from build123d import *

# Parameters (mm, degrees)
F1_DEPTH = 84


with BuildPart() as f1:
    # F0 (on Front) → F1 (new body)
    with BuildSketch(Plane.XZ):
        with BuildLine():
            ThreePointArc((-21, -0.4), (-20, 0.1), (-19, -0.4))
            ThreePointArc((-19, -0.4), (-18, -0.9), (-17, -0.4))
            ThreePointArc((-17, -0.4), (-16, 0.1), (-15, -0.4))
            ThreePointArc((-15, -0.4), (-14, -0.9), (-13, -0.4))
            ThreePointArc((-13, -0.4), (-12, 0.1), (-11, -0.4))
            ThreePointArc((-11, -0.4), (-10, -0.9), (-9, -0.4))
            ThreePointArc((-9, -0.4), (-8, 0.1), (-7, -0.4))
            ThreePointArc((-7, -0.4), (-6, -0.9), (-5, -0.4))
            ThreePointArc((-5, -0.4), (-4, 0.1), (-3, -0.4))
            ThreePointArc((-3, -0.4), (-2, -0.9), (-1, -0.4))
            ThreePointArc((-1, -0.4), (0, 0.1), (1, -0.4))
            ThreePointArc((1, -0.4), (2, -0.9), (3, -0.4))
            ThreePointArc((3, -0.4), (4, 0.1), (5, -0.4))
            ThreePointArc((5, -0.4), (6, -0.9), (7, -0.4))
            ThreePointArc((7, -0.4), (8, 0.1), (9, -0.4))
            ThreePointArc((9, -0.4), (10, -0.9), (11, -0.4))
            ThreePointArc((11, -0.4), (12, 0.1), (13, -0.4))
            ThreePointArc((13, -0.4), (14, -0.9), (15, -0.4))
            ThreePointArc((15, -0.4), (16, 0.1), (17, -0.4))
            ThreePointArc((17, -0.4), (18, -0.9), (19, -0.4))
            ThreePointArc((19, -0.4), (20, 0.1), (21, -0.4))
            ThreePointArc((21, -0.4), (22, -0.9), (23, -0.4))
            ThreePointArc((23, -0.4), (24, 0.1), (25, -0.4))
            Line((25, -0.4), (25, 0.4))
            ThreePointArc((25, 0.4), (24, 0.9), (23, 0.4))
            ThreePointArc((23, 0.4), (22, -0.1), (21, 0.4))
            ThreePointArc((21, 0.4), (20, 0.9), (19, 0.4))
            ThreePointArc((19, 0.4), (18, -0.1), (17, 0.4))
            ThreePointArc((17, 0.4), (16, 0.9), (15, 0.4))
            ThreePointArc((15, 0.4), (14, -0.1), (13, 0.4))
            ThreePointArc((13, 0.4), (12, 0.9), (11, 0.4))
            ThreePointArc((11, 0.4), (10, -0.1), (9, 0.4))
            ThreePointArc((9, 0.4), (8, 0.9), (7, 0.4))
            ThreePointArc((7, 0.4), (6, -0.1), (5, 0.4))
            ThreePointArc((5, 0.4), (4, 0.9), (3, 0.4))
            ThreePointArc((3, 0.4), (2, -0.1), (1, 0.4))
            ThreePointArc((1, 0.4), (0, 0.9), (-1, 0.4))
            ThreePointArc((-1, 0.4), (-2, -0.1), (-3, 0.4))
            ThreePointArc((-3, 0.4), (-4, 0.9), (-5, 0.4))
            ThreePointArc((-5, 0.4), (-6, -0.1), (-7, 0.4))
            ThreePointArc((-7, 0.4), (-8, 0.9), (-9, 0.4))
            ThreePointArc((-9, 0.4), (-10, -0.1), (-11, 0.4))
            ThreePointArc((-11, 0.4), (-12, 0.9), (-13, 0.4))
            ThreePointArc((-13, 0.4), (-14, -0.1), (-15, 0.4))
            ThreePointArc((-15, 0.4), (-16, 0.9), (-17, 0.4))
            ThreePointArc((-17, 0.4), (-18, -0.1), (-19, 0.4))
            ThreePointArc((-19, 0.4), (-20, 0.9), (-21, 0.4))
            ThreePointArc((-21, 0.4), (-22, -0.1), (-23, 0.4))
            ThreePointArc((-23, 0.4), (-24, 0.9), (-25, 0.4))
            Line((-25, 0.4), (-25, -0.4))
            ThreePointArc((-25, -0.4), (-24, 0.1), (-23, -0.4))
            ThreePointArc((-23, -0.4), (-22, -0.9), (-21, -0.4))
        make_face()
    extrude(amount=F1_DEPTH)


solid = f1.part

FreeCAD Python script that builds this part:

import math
import FreeCAD as App
import Part
import Sketcher
from FreeCAD import Vector

doc = App.newDocument("Part")
body = doc.addObject("PartDesign::Body", "Body")

sketch1 = body.newObject("Sketcher::SketchObject", "Sketch")
sketch1.AttachmentSupport = (doc.getObject("XZ_Plane"), [""])
sketch1.MapMode = "FlatFace"
sketch1.addGeometry([
    Part.ArcOfCircle(Part.Circle(Vector(-20, -1.1, 0), Vector(0, 0, 1), 1.2), math.radians(37), math.radians(143)),
    Part.ArcOfCircle(Part.Circle(Vector(-18, 0.3, 0), Vector(0, 0, 1), 1.2), math.radians(-143), math.radians(-37)),
    Part.ArcOfCircle(Part.Circle(Vector(-16, -1.1, 0), Vector(0, 0, 1), 1.2), math.radians(37), math.radians(143)),
    Part.ArcOfCircle(Part.Circle(Vector(-14, 0.3, 0), Vector(0, 0, 1), 1.2), math.radians(-143), math.radians(-37)),
    Part.ArcOfCircle(Part.Circle(Vector(-12, -1.1, 0), Vector(0, 0, 1), 1.2), math.radians(37), math.radians(143)),
    Part.ArcOfCircle(Part.Circle(Vector(-10, 0.3, 0), Vector(0, 0, 1), 1.2), math.radians(-143), math.radians(-37)),
    Part.ArcOfCircle(Part.Circle(Vector(-8, -1.1, 0), Vector(0, 0, 1), 1.2), math.radians(37), math.radians(143)),
    Part.ArcOfCircle(Part.Circle(Vector(-6, 0.3, 0), Vector(0, 0, 1), 1.2), math.radians(-143), math.radians(-37)),
    Part.ArcOfCircle(Part.Circle(Vector(-4, -1.1, 0), Vector(0, 0, 1), 1.2), math.radians(37), math.radians(143)),
    Part.ArcOfCircle(Part.Circle(Vector(-2, 0.3, 0), Vector(0, 0, 1), 1.2), math.radians(-143), math.radians(-37)),
    Part.ArcOfCircle(Part.Circle(Vector(0, -1.1, 0), Vector(0, 0, 1), 1.2), math.radians(37), math.radians(143)),
    Part.ArcOfCircle(Part.Circle(Vector(2, 0.3, 0), Vector(0, 0, 1), 1.2), math.radians(-143), math.radians(-37)),
    Part.ArcOfCircle(Part.Circle(Vector(4, -1.1, 0), Vector(0, 0, 1), 1.2), math.radians(37), math.radians(143)),
    Part.ArcOfCircle(Part.Circle(Vector(6, 0.3, 0), Vector(0, 0, 1), 1.2), math.radians(-143), math.radians(-37)),
    Part.ArcOfCircle(Part.Circle(Vector(8, -1.1, 0), Vector(0, 0, 1), 1.2), math.radians(37), math.radians(143)),
    Part.ArcOfCircle(Part.Circle(Vector(10, 0.3, 0), Vector(0, 0, 1), 1.2), math.radians(-143), math.radians(-37)),
    Part.ArcOfCircle(Part.Circle(Vector(12, -1.1, 0), Vector(0, 0, 1), 1.2), math.radians(37), math.radians(143)),
    Part.ArcOfCircle(Part.Circle(Vector(14, 0.3, 0), Vector(0, 0, 1), 1.2), math.radians(-143), math.radians(-37)),
    Part.ArcOfCircle(Part.Circle(Vector(16, -1.1, 0), Vector(0, 0, 1), 1.2), math.radians(37), math.radians(143)),
    Part.ArcOfCircle(Part.Circle(Vector(18, 0.3, 0), Vector(0, 0, 1), 1.2), math.radians(-143), math.radians(-37)),
    Part.ArcOfCircle(Part.Circle(Vector(20, -1.1, 0), Vector(0, 0, 1), 1.2), math.radians(37), math.radians(143)),
    Part.ArcOfCircle(Part.Circle(Vector(22, 0.3, 0), Vector(0, 0, 1), 1.2), math.radians(-143), math.radians(-37)),
    Part.ArcOfCircle(Part.Circle(Vector(24, -1.1, 0), Vector(0, 0, 1), 1.2), math.radians(37), math.radians(143)),
    Part.LineSegment(Vector(25, -0.4, 0), Vector(25, 0.4, 0)),
    Part.ArcOfCircle(Part.Circle(Vector(24, -0.3, 0), Vector(0, 0, 1), 1.2), math.radians(37), math.radians(143)),
    Part.ArcOfCircle(Part.Circle(Vector(22, 1.1, 0), Vector(0, 0, 1), 1.2), math.radians(-143), math.radians(-37)),
    Part.ArcOfCircle(Part.Circle(Vector(20, -0.3, 0), Vector(0, 0, 1), 1.2), math.radians(37), math.radians(143)),
    Part.ArcOfCircle(Part.Circle(Vector(18, 1.1, 0), Vector(0, 0, 1), 1.2), math.radians(-143), math.radians(-37)),
    Part.ArcOfCircle(Part.Circle(Vector(16, -0.3, 0), Vector(0, 0, 1), 1.2), math.radians(37), math.radians(143)),
    Part.ArcOfCircle(Part.Circle(Vector(14, 1.1, 0), Vector(0, 0, 1), 1.2), math.radians(-143), math.radians(-37)),
    Part.ArcOfCircle(Part.Circle(Vector(12, -0.3, 0), Vector(0, 0, 1), 1.2), math.radians(37), math.radians(143)),
    Part.ArcOfCircle(Part.Circle(Vector(10, 1.1, 0), Vector(0, 0, 1), 1.2), math.radians(-143), math.radians(-37)),
    Part.ArcOfCircle(Part.Circle(Vector(8, -0.3, 0), Vector(0, 0, 1), 1.2), math.radians(37), math.radians(143)),
    Part.ArcOfCircle(Part.Circle(Vector(6, 1.1, 0), Vector(0, 0, 1), 1.2), math.radians(-143), math.radians(-37)),
    Part.ArcOfCircle(Part.Circle(Vector(4, -0.3, 0), Vector(0, 0, 1), 1.2), math.radians(37), math.radians(143)),
    Part.ArcOfCircle(Part.Circle(Vector(2, 1.1, 0), Vector(0, 0, 1), 1.2), math.radians(-143), math.radians(-37)),
    Part.ArcOfCircle(Part.Circle(Vector(0, -0.3, 0), Vector(0, 0, 1), 1.2), math.radians(37), math.radians(143)),
    Part.ArcOfCircle(Part.Circle(Vector(-2, 1.1, 0), Vector(0, 0, 1), 1.2), math.radians(-143), math.radians(-37)),
    Part.ArcOfCircle(Part.Circle(Vector(-4, -0.3, 0), Vector(0, 0, 1), 1.2), math.radians(37), math.radians(143)),
    Part.ArcOfCircle(Part.Circle(Vector(-6, 1.1, 0), Vector(0, 0, 1), 1.2), math.radians(-143), math.radians(-37)),
    Part.ArcOfCircle(Part.Circle(Vector(-8, -0.3, 0), Vector(0, 0, 1), 1.2), math.radians(37), math.radians(143)),
    Part.ArcOfCircle(Part.Circle(Vector(-10, 1.1, 0), Vector(0, 0, 1), 1.2), math.radians(-143), math.radians(-37)),
    Part.ArcOfCircle(Part.Circle(Vector(-12, -0.3, 0), Vector(0, 0, 1), 1.2), math.radians(37), math.radians(143)),
    Part.ArcOfCircle(Part.Circle(Vector(-14, 1.1, 0), Vector(0, 0, 1), 1.2), math.radians(-143), math.radians(-37)),
    Part.ArcOfCircle(Part.Circle(Vector(-16, -0.3, 0), Vector(0, 0, 1), 1.2), math.radians(37), math.radians(143)),
    Part.ArcOfCircle(Part.Circle(Vector(-18, 1.1, 0), Vector(0, 0, 1), 1.2), math.radians(-143), math.radians(-37)),
    Part.ArcOfCircle(Part.Circle(Vector(-20, -0.3, 0), Vector(0, 0, 1), 1.2), math.radians(37), math.radians(143)),
    Part.ArcOfCircle(Part.Circle(Vector(-22, 1.1, 0), Vector(0, 0, 1), 1.2), math.radians(-143), math.radians(-37)),
    Part.ArcOfCircle(Part.Circle(Vector(-24, -0.3, 0), Vector(0, 0, 1), 1.2), math.radians(37), math.radians(143)),
    Part.LineSegment(Vector(-25, 0.4, 0), Vector(-25, -0.4, 0)),
    Part.ArcOfCircle(Part.Circle(Vector(-24, -1.1, 0), Vector(0, 0, 1), 1.2), math.radians(37), math.radians(143)),
    Part.ArcOfCircle(Part.Circle(Vector(-22, 0.3, 0), Vector(0, 0, 1), 1.2), math.radians(-143), math.radians(-37)),
], False)
sketch1.addConstraint([
    Sketcher.Constraint("Tangent", 0, 1, 1, 1),
    Sketcher.Constraint("Tangent", 1, 2, 2, 2),
    Sketcher.Constraint("Tangent", 2, 1, 3, 1),
    Sketcher.Constraint("Tangent", 3, 2, 4, 2),
    Sketcher.Constraint("Tangent", 4, 1, 5, 1),
    Sketcher.Constraint("Tangent", 5, 2, 6, 2),
    Sketcher.Constraint("Tangent", 6, 1, 7, 1),
    Sketcher.Constraint("Tangent", 7, 2, 8, 2),
    Sketcher.Constraint("Tangent", 8, 1, 9, 1),
    Sketcher.Constraint("Tangent", 9, 2, 10, 2),
    Sketcher.Constraint("Tangent", 10, 1, 11, 1),
    Sketcher.Constraint("Tangent", 11, 2, 12, 2),
    Sketcher.Constraint("Tangent", 12, 1, 13, 1),
    Sketcher.Constraint("Tangent", 13, 2, 14, 2),
    Sketcher.Constraint("Tangent", 14, 1, 15, 1),
    Sketcher.Constraint("Tangent", 15, 2, 16, 2),
    Sketcher.Constraint("Tangent", 16, 1, 17, 1),
    Sketcher.Constraint("Tangent", 17, 2, 18, 2),
    Sketcher.Constraint("Tangent", 18, 1, 19, 1),
    Sketcher.Constraint("Tangent", 19, 2, 20, 2),
    Sketcher.Constraint("Tangent", 20, 1, 21, 1),
    Sketcher.Constraint("Tangent", 21, 2, 22, 2),
    Sketcher.Constraint("Coincident", 22, 1, 23, 1),
    Sketcher.Constraint("Coincident", 23, 2, 24, 1),
    Sketcher.Constraint("Tangent", 24, 2, 25, 2),
    Sketcher.Constraint("Tangent", 25, 1, 26, 1),
    Sketcher.Constraint("Tangent", 26, 2, 27, 2),
    Sketcher.Constraint("Tangent", 27, 1, 28, 1),
    Sketcher.Constraint("Tangent", 28, 2, 29, 2),
    Sketcher.Constraint("Tangent", 29, 1, 30, 1),
    Sketcher.Constraint("Tangent", 30, 2, 31, 2),
    Sketcher.Constraint("Tangent", 31, 1, 32, 1),
    Sketcher.Constraint("Tangent", 32, 2, 33, 2),
    Sketcher.Constraint("Tangent", 33, 1, 34, 1),
    Sketcher.Constraint("Tangent", 34, 2, 35, 2),
    Sketcher.Constraint("Tangent", 35, 1, 36, 1),
    Sketcher.Constraint("Tangent", 36, 2, 37, 2),
    Sketcher.Constraint("Tangent", 37, 1, 38, 1),
    Sketcher.Constraint("Tangent", 38, 2, 39, 2),
    Sketcher.Constraint("Tangent", 39, 1, 40, 1),
    Sketcher.Constraint("Tangent", 40, 2, 41, 2),
    Sketcher.Constraint("Tangent", 41, 1, 42, 1),
    Sketcher.Constraint("Tangent", 42, 2, 43, 2),
    Sketcher.Constraint("Tangent", 43, 1, 44, 1),
    Sketcher.Constraint("Tangent", 44, 2, 45, 2),
    Sketcher.Constraint("Tangent", 45, 1, 46, 1),
    Sketcher.Constraint("Tangent", 46, 2, 47, 2),
    Sketcher.Constraint("Tangent", 47, 1, 48, 1),
    Sketcher.Constraint("Coincident", 48, 2, 49, 1),
    Sketcher.Constraint("Coincident", 49, 2, 50, 2),
    Sketcher.Constraint("Tangent", 50, 1, 51, 1),
    Sketcher.Constraint("Tangent", 51, 2, 0, 2),
    Sketcher.Constraint("Vertical", 23),
    Sketcher.Constraint("Vertical", 49),
    Sketcher.Constraint("Equal", 0, 1),
    Sketcher.Constraint("Equal", 1, 2),
    Sketcher.Constraint("Equal", 2, 3),
    Sketcher.Constraint("Equal", 3, 4),
    Sketcher.Constraint("Equal", 4, 5),
    Sketcher.Constraint("Equal", 5, 6),
    Sketcher.Constraint("Equal", 6, 7),
    Sketcher.Constraint("Equal", 7, 8),
    Sketcher.Constraint("Equal", 8, 9),
    Sketcher.Constraint("Equal", 9, 10),
    Sketcher.Constraint("Equal", 10, 11),
    Sketcher.Constraint("Equal", 11, 12),
    Sketcher.Constraint("Equal", 12, 13),
    Sketcher.Constraint("Equal", 13, 14),
    Sketcher.Constraint("Equal", 14, 15),
    Sketcher.Constraint("Equal", 15, 16),
    Sketcher.Constraint("Equal", 16, 17),
    Sketcher.Constraint("Equal", 17, 18),
    Sketcher.Constraint("Equal", 18, 19),
    Sketcher.Constraint("Equal", 19, 20),
    Sketcher.Constraint("Equal", 20, 21),
    Sketcher.Constraint("Equal", 21, 22),
    Sketcher.Constraint("Equal", 22, 24),
    Sketcher.Constraint("Equal", 24, 25),
    Sketcher.Constraint("Equal", 25, 26),
    Sketcher.Constraint("Equal", 26, 27),
    Sketcher.Constraint("Equal", 27, 28),
    Sketcher.Constraint("Equal", 28, 29),
    Sketcher.Constraint("Equal", 29, 30),
    Sketcher.Constraint("Equal", 30, 31),
    Sketcher.Constraint("Equal", 31, 32),
    Sketcher.Constraint("Equal", 32, 33),
    Sketcher.Constraint("Equal", 33, 34),
    Sketcher.Constraint("Equal", 34, 35),
    Sketcher.Constraint("Equal", 35, 36),
    Sketcher.Constraint("Equal", 36, 37),
    Sketcher.Constraint("Equal", 37, 38),
    Sketcher.Constraint("Equal", 38, 39),
    Sketcher.Constraint("Equal", 39, 40),
    Sketcher.Constraint("Equal", 40, 41),
    Sketcher.Constraint("Equal", 41, 42),
    Sketcher.Constraint("Equal", 42, 43),
    Sketcher.Constraint("Equal", 43, 44),
    Sketcher.Constraint("Equal", 44, 45),
    Sketcher.Constraint("Equal", 45, 46),
    Sketcher.Constraint("Equal", 46, 47),
    Sketcher.Constraint("Equal", 47, 48),
    Sketcher.Constraint("Equal", 48, 50),
    Sketcher.Constraint("Equal", 50, 51),
    Sketcher.Constraint("Symmetric", 0, 1, 26, 2, -1, 1),
    Sketcher.Constraint("Symmetric", 1, 2, 27, 1, -1, 1),
    Sketcher.Constraint("Symmetric", 2, 1, 28, 2, -1, 1),
    Sketcher.Constraint("Symmetric", 3, 2, 29, 1, -1, 1),
    Sketcher.Constraint("Symmetric", 4, 1, 30, 2, -1, 1),
    Sketcher.Constraint("Symmetric", 5, 2, 31, 1, -1, 1),
    Sketcher.Constraint("Symmetric", 6, 1, 32, 2, -1, 1),
    Sketcher.Constraint("Symmetric", 7, 2, 33, 1, -1, 1),
    Sketcher.Constraint("Symmetric", 8, 1, 34, 2, -1, 1),
    Sketcher.Constraint("Symmetric", 9, 2, 35, 1, -1, 1),
    Sketcher.Constraint("Symmetric", 10, 1, 36, 2, -1, 1),
    Sketcher.Constraint("Symmetric", 11, 2, 37, 1, -1, 1),
    Sketcher.Constraint("Symmetric", 12, 1, 38, 2, -1, 1),
    Sketcher.Constraint("Symmetric", 13, 2, 39, 1, -1, 1),
    Sketcher.Constraint("Symmetric", 14, 1, 40, 2, -1, 1),
    Sketcher.Constraint("Symmetric", 15, 2, 41, 1, -1, 1),
    Sketcher.Constraint("Symmetric", 16, 1, 42, 2, -1, 1),
    Sketcher.Constraint("Symmetric", 17, 2, 43, 1, -1, 1),
    Sketcher.Constraint("Symmetric", 18, 1, 44, 2, -1, 1),
    Sketcher.Constraint("Symmetric", 19, 2, 45, 1, -1, 1),
    Sketcher.Constraint("Symmetric", 20, 1, 46, 2, -1, 1),
    Sketcher.Constraint("Symmetric", 21, 2, 47, 1, -1, 1),
    Sketcher.Constraint("Symmetric", 22, 1, 48, 2, -1, 1),
    Sketcher.Constraint("Symmetric", 24, 2, 50, 1, -1, 1),
    Sketcher.Constraint("Symmetric", 25, 1, 51, 2, -1, 1),
    Sketcher.Constraint("Symmetric", 9, 3, 11, 3, -2),
    Sketcher.Constraint("Radius", 0, 1.25),
    Sketcher.Constraint("DistanceY", 23, 1, 23, 2, 0.8),
    Sketcher.Constraint("DistanceX", 0, 3, -1, 1, 20.0),
])
pad1 = body.newObject("PartDesign::Pad", "Pad")
pad1.Profile = sketch1
pad1.Length = 84

doc.recompute()
